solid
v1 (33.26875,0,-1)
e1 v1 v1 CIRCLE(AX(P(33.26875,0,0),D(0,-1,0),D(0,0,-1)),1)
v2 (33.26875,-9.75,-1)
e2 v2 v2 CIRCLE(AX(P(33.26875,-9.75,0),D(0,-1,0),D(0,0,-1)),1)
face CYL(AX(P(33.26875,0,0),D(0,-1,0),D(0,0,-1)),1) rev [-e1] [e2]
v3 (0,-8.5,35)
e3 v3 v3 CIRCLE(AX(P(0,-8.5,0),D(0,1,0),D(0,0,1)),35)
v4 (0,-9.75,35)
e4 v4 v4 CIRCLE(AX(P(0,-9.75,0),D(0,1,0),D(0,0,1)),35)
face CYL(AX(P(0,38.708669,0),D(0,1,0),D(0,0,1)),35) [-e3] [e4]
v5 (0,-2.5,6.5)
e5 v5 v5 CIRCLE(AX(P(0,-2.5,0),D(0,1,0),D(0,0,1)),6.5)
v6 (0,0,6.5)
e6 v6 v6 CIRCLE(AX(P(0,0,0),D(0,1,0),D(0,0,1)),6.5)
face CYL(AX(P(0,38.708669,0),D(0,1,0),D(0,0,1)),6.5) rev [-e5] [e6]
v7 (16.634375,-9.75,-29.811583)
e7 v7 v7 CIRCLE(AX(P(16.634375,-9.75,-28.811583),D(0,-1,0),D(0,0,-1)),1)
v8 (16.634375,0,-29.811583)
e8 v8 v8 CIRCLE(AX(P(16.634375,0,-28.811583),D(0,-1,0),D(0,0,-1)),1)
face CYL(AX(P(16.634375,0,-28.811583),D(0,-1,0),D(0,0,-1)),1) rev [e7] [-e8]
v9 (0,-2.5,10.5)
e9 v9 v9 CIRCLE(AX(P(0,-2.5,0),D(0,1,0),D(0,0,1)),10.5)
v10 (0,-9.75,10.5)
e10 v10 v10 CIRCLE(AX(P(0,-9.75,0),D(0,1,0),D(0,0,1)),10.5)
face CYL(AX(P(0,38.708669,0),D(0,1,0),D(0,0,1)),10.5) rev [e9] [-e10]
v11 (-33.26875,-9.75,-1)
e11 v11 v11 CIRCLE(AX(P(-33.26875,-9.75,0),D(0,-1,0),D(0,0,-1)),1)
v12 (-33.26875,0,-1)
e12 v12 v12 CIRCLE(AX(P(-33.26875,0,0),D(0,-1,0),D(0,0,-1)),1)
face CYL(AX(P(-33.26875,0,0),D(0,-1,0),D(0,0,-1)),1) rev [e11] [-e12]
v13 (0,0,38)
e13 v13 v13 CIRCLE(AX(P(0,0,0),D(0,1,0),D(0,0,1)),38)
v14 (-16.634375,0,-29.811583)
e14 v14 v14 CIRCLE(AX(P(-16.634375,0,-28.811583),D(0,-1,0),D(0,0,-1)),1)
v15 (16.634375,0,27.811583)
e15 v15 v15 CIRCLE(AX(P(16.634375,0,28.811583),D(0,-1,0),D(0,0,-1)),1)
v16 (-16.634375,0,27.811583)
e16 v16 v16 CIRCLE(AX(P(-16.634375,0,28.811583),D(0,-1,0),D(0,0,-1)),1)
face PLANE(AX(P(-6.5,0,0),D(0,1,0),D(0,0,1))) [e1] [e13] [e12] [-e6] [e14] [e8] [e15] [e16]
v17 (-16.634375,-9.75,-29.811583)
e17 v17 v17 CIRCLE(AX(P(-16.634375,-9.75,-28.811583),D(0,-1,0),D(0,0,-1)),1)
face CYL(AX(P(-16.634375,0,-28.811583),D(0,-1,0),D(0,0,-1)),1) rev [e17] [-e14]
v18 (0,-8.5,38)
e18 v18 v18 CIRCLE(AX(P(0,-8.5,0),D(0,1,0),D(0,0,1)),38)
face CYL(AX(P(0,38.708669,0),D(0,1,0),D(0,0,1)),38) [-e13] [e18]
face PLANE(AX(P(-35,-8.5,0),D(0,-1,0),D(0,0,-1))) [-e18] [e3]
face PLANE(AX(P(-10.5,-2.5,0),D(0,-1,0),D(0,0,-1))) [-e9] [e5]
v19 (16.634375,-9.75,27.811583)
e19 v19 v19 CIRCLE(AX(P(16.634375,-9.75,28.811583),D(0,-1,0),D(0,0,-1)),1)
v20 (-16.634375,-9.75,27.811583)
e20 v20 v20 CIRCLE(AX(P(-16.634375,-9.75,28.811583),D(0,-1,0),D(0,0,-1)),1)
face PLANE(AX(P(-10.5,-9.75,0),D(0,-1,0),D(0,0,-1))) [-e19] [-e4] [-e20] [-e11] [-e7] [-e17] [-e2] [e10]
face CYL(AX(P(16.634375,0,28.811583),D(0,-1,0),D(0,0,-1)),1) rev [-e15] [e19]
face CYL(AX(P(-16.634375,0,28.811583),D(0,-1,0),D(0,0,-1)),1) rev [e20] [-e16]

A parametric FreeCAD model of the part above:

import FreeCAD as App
import Part
import Sketcher
from FreeCAD import Vector
Q = App.Units.Quantity


def add_polygon(sketch, points):
    """Adds a closed chain of lines whose ends are joined by coincident constraints."""
    first, n = sketch.GeometryCount, len(points)
    for a, b in zip(points, points[1:] + points[:1]):
        sketch.addGeometry(Part.LineSegment(App.Vector(*a, 0), App.Vector(*b, 0)), False)
    for i in range(n):
        sketch.addConstraint(Sketcher.Constraint("Coincident", first + i, 2, first + (i + 1) % n, 1))

doc = App.newDocument("Part")
body = doc.addObject("PartDesign::Body", "Body")

sketch1 = doc.addObject("Sketcher::SketchObject", "Sketch")
body.addObject(sketch1)
sketch1.AttachmentSupport = (doc.XY_Plane, [""])
sketch1.MapMode = "FlatFace"
add_polygon(sketch1, [(-6.5, 0), (-38, 0), (-38, -8.5), (-35, -8.5), (-35, -9.8), (-10.5, -9.8), (-10.5, -2.5), (-6.5, -2.5)])
sketch1.addConstraint(Sketcher.Constraint("Horizontal", 0))
sketch1.addConstraint(Sketcher.Constraint("Vertical", 1))
sketch1.addConstraint(Sketcher.Constraint("Horizontal", 2))
sketch1.addConstraint(Sketcher.Constraint("Vertical", 3))
sketch1.addConstraint(Sketcher.Constraint("Horizontal", 4))
sketch1.addConstraint(Sketcher.Constraint("Vertical", 5))
sketch1.addConstraint(Sketcher.Constraint("Horizontal", 6))
sketch1.addConstraint(Sketcher.Constraint("Vertical", 7))
sketch1.addConstraint(Sketcher.Constraint("PointOnObject", 0, 2, -1))
sketch1.addConstraint(Sketcher.Constraint("DistanceX", 2, 1, 2, 2, Q("3 mm")))
sketch1.addConstraint(Sketcher.Constraint("DistanceX", 6, 1, 6, 2, Q("4 mm")))
sketch1.addConstraint(Sketcher.Constraint("DistanceX", 0, 2, 0, 1, Q("31.5 mm")))
sketch1.addConstraint(Sketcher.Constraint("DistanceY", 1, 2, 1, 1, Q("8.5 mm")))
sketch1.addConstraint(Sketcher.Constraint("DistanceY", 7, 1, 7, 2, Q("2.5 mm")))
sketch1.addConstraint(Sketcher.Constraint("DistanceX", 0, 2, -1, 1, Q("38 mm")))
sketch1.addConstraint(Sketcher.Constraint("DistanceY", 3, 2, 3, 1, Q("1.25 mm")))
revolution = doc.addObject("PartDesign::Revolution", "Revolution")
body.addObject(revolution)
revolution.Profile = sketch1
revolution.ReferenceAxis = (sketch1, ["V_Axis"])
revolution.Angle = 360

sketch2 = doc.addObject("Sketcher::SketchObject", "Sketch001")
body.addObject(sketch2)
sketch2.AttachmentSupport = (doc.XZ_Plane, [""])
sketch2.MapMode = "FlatFace"
sketch2.AttachmentOffset = App.Placement(Vector(0, 0, 9.75), App.Rotation())
sketch2.addGeometry(Part.Circle(Vector(-33.3, 0, 0), Vector(0, 0, 1), 1), False)
sketch2.addGeometry(Part.Circle(Vector(-16.6, 28.8, 0), Vector(0, 0, 1), 1), False)
sketch2.addGeometry(Part.Circle(Vector(16.6, 28.8, 0), Vector(0, 0, 1), 1), False)
sketch2.addGeometry(Part.Circle(Vector(33.3, 0, 0), Vector(0, 0, 1), 1), False)
sketch2.addGeometry(Part.Circle(Vector(16.6, -28.8, 0), Vector(0, 0, 1), 1), False)
sketch2.addGeometry(Part.Circle(Vector(-16.6, -28.8, 0), Vector(0, 0, 1), 1), False)
sketch2.addConstraint(Sketcher.Constraint("Equal", 0, 1))
sketch2.addConstraint(Sketcher.Constraint("Equal", 1, 2))
sketch2.addConstraint(Sketcher.Constraint("Equal", 2, 3))
sketch2.addConstraint(Sketcher.Constraint("Equal", 3, 4))
sketch2.addConstraint(Sketcher.Constraint("Equal", 4, 5))
sketch2.addConstraint(Sketcher.Constraint("Symmetric", 0, 3, 3, 3, -1, 1))
sketch2.addConstraint(Sketcher.Constraint("Symmetric", 1, 3, 4, 3, -1, 1))
sketch2.addConstraint(Sketcher.Constraint("Symmetric", 2, 3, 5, 3, -1, 1))
sketch2.addConstraint(Sketcher.Constraint("Symmetric", 1, 3, 2, 3, -2))
sketch2.addConstraint(Sketcher.Constraint("PointOnObject", 0, 3, -1))
sketch2.addConstraint(Sketcher.Constraint("Diameter", 0, Q("2 mm")))
sketch2.addConstraint(Sketcher.Constraint("DistanceX", 0, 3, 3, 3, Q("66.5375 mm")))
sketch2.addConstraint(Sketcher.Constraint("DistanceX", 1, 3, 2, 3, Q("33.26875 mm")))
sketch2.addConstraint(Sketcher.Constraint("DistanceY", -1, 1, 1, 3, Q("28.811583 mm")))
pocket1 = doc.addObject("PartDesign::Pocket", "Pocket")
body.addObject(pocket1)
pocket1.Profile = sketch2
pocket1.Type = "ThroughAll"

doc.recompute()
